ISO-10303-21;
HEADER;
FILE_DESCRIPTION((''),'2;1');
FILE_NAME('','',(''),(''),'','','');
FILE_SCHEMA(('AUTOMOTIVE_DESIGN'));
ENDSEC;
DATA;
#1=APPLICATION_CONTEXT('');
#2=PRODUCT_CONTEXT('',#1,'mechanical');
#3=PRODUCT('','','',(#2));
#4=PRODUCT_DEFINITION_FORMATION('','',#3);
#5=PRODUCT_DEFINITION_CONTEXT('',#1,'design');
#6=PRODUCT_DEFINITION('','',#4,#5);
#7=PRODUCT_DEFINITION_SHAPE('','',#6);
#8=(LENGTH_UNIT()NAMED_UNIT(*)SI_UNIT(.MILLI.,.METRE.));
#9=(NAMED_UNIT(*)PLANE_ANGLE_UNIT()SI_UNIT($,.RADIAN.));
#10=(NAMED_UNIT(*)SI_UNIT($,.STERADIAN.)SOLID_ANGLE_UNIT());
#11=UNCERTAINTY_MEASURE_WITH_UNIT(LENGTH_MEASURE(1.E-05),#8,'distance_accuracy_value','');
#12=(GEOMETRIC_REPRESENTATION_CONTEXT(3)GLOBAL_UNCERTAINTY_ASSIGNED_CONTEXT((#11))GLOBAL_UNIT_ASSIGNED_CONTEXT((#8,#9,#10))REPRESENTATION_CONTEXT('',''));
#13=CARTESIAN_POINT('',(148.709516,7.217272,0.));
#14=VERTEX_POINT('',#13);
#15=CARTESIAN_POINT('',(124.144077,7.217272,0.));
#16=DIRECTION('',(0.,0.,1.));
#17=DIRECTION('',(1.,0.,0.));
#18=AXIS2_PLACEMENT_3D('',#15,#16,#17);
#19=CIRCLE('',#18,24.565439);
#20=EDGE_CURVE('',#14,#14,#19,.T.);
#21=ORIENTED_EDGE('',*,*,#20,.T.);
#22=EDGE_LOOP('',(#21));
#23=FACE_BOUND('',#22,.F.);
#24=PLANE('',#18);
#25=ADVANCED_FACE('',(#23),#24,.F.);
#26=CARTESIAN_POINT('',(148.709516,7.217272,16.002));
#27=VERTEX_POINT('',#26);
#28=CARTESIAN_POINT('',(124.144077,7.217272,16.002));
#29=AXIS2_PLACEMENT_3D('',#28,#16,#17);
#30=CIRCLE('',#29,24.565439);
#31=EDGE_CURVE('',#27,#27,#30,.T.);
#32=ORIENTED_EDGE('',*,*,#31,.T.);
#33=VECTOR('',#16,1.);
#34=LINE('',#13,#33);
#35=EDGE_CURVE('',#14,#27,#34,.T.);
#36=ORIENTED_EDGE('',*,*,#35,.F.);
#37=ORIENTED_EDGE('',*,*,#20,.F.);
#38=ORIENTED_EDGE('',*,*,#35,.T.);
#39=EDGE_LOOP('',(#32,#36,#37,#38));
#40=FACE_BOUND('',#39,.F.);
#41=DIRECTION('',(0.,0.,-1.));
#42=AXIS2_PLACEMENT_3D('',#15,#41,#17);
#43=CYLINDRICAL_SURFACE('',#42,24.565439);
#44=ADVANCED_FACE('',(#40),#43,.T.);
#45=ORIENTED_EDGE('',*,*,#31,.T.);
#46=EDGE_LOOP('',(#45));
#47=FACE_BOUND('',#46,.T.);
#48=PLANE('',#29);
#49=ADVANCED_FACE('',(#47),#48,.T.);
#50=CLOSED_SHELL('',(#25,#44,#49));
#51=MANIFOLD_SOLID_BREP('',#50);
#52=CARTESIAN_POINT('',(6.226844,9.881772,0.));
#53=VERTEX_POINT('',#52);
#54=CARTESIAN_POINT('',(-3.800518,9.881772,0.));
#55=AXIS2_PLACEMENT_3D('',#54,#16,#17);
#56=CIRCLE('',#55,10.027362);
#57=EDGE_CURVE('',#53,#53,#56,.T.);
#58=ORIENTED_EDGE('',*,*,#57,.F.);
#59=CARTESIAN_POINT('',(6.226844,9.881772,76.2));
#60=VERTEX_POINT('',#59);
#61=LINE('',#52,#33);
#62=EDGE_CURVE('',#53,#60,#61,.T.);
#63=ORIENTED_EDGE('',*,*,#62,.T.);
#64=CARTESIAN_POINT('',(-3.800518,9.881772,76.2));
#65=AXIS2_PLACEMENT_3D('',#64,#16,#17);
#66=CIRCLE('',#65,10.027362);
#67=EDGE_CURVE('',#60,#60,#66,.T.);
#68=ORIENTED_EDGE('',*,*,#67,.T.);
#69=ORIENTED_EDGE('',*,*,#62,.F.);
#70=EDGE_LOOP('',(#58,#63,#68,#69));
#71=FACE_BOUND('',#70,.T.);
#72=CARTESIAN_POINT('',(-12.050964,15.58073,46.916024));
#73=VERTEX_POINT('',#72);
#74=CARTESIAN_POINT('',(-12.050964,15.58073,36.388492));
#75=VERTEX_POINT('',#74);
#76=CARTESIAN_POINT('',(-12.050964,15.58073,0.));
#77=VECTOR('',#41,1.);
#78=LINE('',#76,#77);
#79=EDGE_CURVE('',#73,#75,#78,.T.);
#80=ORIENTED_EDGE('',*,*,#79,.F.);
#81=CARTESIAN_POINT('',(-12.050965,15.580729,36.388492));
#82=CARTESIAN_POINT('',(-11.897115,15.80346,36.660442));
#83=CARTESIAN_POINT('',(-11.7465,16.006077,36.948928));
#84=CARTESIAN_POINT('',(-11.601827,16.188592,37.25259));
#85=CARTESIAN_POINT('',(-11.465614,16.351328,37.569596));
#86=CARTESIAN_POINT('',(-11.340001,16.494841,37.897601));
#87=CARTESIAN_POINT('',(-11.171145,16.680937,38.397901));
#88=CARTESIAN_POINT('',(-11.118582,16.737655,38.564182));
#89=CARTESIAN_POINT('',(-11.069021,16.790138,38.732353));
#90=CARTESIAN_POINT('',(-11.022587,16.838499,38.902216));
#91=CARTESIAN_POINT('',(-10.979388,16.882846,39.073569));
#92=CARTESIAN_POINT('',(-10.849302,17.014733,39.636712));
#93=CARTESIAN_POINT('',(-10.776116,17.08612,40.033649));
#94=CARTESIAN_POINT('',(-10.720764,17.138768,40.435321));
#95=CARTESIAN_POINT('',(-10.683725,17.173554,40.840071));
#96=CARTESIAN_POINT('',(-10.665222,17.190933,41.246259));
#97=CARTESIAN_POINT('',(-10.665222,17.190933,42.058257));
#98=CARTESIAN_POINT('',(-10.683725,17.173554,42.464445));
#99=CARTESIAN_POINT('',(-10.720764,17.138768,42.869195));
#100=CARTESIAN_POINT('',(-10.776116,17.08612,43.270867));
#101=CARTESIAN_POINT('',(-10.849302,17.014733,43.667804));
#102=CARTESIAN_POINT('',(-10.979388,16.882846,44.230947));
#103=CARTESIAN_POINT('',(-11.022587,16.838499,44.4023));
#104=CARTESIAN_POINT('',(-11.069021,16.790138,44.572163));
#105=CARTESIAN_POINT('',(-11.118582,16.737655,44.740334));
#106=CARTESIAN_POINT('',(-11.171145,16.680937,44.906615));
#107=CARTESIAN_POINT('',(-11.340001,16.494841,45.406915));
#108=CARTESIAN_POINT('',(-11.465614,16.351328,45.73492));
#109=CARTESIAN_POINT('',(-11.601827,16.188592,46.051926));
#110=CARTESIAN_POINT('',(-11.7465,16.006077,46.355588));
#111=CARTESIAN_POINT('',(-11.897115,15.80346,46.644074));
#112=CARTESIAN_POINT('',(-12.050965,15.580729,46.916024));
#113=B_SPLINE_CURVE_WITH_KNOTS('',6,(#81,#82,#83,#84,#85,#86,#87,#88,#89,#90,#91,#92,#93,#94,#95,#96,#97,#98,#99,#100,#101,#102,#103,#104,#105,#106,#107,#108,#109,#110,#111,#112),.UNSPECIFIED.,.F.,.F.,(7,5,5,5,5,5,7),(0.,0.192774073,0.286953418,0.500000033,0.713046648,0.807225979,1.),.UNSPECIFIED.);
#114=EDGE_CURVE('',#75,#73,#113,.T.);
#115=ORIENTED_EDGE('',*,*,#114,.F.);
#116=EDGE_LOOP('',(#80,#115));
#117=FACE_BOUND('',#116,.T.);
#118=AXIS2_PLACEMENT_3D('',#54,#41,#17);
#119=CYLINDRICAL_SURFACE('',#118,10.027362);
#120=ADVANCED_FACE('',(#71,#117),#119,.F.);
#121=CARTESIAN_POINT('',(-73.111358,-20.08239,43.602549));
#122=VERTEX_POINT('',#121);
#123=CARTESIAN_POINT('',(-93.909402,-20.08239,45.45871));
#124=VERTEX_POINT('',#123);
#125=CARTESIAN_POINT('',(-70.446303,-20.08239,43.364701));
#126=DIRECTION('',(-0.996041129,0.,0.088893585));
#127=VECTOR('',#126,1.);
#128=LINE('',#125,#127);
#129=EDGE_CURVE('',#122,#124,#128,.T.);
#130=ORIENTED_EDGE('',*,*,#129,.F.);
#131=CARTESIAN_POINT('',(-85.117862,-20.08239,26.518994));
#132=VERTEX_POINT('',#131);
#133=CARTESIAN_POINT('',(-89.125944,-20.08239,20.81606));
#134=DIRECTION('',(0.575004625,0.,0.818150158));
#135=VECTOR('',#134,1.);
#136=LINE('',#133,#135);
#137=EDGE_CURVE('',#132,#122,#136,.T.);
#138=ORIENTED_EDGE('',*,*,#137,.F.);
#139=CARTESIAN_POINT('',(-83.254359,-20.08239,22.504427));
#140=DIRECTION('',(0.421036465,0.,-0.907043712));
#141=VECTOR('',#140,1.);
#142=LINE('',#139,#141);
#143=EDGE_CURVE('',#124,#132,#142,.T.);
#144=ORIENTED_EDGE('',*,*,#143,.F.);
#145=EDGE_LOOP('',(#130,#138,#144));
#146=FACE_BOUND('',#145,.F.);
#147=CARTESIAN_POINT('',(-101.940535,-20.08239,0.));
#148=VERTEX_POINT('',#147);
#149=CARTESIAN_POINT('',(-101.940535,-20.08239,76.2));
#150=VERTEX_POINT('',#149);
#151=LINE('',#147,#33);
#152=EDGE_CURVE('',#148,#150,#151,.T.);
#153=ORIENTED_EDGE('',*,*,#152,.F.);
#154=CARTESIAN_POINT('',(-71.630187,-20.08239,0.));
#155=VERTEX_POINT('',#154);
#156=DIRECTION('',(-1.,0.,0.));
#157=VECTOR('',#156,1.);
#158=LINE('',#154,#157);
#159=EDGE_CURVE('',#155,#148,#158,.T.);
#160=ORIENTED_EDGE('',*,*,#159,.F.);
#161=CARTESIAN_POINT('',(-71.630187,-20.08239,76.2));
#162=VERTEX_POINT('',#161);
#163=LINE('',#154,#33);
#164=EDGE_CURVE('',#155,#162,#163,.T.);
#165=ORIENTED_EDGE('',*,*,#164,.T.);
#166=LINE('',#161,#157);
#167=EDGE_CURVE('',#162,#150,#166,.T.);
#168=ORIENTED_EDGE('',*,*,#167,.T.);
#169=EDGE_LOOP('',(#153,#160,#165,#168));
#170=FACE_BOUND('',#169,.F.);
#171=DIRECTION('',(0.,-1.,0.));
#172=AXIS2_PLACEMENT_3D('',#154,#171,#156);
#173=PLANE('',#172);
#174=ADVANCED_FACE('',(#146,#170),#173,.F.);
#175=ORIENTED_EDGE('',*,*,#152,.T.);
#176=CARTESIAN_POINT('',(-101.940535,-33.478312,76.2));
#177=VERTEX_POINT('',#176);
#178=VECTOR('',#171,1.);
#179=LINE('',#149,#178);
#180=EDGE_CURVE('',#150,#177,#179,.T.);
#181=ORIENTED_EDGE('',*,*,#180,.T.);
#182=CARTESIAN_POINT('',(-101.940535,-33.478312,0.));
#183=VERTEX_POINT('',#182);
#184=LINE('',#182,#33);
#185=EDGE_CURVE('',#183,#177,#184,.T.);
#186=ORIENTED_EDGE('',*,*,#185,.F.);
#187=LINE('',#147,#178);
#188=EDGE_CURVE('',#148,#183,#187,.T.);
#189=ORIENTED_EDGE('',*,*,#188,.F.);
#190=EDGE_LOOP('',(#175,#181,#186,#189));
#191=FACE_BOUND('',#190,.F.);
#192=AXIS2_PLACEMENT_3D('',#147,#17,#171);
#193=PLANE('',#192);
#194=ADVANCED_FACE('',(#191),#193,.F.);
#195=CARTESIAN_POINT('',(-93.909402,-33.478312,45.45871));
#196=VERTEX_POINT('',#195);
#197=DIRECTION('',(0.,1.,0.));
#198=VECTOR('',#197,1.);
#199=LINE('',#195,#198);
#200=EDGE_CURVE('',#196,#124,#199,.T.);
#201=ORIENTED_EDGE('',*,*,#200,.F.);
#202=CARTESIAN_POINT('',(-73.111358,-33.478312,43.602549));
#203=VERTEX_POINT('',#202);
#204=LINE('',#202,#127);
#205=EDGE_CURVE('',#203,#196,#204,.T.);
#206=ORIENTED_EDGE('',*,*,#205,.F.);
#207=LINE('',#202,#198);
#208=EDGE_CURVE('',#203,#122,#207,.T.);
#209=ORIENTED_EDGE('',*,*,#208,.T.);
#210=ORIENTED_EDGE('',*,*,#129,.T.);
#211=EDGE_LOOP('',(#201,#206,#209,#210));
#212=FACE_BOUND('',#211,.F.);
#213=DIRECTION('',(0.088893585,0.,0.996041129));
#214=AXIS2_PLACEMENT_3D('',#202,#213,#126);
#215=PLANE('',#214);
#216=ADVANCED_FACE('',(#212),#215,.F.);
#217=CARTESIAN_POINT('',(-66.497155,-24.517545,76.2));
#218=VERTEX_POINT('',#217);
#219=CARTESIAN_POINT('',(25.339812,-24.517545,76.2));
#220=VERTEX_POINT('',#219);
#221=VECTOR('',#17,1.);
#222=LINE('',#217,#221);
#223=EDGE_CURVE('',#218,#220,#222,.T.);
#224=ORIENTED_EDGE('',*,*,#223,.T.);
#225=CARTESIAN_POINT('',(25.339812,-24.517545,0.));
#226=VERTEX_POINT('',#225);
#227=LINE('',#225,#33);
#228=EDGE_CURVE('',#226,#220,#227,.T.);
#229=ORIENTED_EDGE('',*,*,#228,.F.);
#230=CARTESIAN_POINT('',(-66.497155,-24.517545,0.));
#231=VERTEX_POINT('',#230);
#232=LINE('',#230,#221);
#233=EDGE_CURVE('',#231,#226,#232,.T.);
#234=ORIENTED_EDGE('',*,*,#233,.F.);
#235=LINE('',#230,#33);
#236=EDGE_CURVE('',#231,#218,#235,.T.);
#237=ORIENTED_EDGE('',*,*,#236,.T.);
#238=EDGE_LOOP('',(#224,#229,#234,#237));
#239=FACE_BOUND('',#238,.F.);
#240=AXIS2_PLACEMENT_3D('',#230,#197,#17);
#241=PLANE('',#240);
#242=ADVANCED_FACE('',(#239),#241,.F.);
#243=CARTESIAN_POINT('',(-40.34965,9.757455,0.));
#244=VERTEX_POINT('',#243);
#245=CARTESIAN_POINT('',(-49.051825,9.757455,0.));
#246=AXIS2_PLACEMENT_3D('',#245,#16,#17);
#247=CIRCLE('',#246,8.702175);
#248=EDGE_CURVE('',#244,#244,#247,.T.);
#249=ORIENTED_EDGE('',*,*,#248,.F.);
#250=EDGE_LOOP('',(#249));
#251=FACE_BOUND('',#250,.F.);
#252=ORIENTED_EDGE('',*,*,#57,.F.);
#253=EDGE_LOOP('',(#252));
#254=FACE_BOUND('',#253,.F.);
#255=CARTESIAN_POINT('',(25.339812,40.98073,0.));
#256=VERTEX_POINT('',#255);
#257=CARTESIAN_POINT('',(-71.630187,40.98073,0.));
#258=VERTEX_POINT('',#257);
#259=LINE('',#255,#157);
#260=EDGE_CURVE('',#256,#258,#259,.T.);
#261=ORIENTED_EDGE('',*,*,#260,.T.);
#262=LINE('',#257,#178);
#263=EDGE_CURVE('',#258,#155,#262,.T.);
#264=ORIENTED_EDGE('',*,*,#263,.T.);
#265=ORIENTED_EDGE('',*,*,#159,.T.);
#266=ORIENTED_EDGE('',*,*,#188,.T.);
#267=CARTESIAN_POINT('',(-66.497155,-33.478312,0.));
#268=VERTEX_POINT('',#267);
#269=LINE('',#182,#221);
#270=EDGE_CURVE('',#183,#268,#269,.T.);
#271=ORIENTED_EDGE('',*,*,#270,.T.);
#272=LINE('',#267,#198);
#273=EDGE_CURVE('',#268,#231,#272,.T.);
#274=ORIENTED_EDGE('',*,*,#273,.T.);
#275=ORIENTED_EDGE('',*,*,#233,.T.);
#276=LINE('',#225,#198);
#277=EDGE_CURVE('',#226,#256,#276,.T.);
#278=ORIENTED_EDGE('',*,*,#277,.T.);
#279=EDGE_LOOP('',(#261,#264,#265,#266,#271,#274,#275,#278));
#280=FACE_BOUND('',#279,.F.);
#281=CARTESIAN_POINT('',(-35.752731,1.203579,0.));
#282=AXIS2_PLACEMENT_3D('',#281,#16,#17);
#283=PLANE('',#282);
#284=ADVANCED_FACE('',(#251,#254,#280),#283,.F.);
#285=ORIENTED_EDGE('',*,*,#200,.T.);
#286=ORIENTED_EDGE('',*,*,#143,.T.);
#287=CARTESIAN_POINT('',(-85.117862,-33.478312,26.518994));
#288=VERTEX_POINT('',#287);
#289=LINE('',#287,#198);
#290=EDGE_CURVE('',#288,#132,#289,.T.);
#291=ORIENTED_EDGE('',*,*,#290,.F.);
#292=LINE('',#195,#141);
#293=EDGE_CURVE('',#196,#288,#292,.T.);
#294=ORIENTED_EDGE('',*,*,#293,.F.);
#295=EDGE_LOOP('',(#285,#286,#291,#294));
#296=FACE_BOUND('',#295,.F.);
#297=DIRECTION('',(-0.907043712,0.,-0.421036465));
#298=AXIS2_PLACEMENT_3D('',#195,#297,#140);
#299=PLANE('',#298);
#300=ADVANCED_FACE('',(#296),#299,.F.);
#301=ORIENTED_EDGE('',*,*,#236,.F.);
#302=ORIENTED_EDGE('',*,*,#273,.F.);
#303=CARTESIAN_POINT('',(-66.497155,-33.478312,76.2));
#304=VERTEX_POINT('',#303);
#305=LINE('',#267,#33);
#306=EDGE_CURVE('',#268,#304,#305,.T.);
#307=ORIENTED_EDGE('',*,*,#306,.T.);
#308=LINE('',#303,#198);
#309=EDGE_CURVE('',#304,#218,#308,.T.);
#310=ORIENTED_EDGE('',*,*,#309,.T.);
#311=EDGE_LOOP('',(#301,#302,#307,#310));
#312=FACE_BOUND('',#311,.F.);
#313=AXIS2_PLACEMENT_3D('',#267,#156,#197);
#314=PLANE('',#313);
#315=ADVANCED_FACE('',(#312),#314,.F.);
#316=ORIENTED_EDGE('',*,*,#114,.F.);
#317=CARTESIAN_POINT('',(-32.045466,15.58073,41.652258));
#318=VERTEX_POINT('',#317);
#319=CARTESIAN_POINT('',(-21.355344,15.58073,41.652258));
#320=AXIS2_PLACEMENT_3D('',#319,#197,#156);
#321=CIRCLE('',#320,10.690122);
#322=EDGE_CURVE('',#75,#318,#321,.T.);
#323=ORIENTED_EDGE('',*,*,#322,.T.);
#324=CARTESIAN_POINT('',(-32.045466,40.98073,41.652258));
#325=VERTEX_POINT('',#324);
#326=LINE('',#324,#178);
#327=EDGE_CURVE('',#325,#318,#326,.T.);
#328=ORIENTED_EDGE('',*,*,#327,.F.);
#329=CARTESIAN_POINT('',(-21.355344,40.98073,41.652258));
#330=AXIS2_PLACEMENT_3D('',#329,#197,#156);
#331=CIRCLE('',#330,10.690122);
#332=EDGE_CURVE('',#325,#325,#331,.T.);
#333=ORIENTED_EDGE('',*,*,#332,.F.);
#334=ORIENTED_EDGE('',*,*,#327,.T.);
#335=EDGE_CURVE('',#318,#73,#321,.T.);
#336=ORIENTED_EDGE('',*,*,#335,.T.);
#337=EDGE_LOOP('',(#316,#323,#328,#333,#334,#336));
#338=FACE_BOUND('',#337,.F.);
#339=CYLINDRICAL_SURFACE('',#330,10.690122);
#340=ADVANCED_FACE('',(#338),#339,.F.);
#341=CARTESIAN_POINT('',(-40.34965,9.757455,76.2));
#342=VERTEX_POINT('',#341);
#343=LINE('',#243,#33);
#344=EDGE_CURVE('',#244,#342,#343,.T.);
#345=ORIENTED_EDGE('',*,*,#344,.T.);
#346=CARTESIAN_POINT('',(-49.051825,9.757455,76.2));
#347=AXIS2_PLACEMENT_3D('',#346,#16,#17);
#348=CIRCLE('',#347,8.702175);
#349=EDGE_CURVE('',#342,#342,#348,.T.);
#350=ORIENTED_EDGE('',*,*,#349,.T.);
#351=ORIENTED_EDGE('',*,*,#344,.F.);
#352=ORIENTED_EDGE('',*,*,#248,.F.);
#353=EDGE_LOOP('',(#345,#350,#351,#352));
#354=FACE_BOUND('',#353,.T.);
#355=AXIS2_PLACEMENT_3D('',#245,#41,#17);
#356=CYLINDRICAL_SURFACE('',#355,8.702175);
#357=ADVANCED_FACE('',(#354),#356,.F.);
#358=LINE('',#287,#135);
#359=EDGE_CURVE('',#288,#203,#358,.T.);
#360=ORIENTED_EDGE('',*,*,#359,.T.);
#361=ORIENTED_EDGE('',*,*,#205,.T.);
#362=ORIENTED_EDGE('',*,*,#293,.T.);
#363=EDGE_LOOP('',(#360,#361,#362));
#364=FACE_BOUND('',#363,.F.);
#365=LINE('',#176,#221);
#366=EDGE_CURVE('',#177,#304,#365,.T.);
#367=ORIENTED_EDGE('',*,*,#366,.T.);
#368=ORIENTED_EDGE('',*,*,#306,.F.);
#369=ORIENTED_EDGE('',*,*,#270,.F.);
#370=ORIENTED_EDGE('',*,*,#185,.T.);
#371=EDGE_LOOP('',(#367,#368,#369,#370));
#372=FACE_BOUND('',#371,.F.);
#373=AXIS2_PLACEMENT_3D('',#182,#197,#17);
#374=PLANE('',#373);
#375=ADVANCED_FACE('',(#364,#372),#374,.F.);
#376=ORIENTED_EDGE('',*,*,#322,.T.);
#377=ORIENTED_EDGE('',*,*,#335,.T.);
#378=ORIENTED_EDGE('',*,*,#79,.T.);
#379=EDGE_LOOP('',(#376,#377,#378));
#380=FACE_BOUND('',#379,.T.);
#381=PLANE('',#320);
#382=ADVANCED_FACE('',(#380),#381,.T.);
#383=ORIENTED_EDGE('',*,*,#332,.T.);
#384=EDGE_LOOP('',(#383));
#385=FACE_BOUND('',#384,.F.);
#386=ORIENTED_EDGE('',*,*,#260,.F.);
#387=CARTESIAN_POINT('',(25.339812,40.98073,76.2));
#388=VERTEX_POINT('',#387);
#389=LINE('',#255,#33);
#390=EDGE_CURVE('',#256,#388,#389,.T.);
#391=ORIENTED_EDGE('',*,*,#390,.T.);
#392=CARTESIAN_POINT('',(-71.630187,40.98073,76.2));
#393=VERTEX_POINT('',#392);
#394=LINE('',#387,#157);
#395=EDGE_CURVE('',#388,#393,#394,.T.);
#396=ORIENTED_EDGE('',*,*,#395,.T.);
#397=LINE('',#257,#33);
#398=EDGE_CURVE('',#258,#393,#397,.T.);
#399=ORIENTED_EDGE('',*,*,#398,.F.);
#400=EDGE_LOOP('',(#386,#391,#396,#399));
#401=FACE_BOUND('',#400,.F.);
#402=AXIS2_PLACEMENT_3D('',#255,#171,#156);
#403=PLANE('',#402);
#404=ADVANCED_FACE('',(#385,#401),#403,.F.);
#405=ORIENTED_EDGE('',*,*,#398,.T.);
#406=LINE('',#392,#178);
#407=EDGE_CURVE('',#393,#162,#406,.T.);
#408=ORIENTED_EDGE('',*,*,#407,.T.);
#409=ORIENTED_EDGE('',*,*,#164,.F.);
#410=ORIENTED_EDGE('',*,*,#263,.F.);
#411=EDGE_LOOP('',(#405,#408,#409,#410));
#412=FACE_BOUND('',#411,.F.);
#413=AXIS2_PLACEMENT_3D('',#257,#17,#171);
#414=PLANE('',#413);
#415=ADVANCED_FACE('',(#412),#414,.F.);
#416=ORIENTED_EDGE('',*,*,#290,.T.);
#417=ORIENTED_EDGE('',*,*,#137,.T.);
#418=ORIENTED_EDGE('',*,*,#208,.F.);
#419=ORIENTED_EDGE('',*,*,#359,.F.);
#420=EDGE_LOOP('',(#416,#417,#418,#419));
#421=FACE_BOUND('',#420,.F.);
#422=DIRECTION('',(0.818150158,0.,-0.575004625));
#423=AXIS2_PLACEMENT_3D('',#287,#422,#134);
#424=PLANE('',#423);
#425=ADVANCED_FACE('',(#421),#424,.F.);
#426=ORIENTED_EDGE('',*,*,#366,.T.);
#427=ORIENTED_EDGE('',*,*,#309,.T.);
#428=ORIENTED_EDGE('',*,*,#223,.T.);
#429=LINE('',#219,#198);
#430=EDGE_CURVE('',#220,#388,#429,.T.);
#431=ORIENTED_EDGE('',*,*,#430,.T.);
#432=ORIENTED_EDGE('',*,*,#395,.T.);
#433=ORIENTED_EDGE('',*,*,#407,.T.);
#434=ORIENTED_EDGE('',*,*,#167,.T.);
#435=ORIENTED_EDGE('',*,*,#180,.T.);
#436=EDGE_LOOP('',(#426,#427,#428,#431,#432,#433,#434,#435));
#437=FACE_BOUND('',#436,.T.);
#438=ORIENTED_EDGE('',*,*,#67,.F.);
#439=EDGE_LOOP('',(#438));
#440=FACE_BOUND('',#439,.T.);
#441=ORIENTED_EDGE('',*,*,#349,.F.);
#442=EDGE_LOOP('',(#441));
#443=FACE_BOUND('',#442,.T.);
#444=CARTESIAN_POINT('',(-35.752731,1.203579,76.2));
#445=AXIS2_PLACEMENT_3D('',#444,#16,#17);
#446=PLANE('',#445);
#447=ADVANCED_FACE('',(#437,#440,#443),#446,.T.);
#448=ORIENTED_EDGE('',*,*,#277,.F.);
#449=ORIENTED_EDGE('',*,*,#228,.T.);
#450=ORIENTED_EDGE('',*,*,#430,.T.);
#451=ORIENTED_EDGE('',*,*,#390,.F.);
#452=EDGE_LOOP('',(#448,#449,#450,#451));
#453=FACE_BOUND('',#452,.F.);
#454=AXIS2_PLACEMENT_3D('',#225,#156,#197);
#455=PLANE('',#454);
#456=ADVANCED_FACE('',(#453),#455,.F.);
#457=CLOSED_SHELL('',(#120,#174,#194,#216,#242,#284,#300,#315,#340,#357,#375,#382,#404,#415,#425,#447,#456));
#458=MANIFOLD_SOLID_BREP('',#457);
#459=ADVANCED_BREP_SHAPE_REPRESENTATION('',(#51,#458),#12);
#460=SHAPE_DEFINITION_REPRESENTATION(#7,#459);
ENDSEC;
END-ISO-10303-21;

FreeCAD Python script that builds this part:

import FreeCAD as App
import Part
import Sketcher
Q = App.Units.Quantity


def add_polygon(sketch, points):
    """Adds a closed chain of lines whose ends are joined by coincident constraints."""
    first, n = sketch.GeometryCount, len(points)
    for a, b in zip(points, points[1:] + points[:1]):
        sketch.addGeometry(Part.LineSegment(App.Vector(*a, 0), App.Vector(*b, 0)), False)
    for i in range(n):
        sketch.addConstraint(Sketcher.Constraint("Coincident", first + i, 2, first + (i + 1) % n, 1))

doc = App.newDocument("Part")
body = doc.addObject("PartDesign::Body", "Body")

sketch1 = body.newObject("Sketcher::SketchObject", "Sketch")
sketch1.AttachmentSupport = (doc.getObject("XY_Plane"), [""])
sketch1.MapMode = "FlatFace"
add_polygon(sketch1, [(25, 41), (-72, 41), (-72, -20), (-102, -20), (-102, -33), (-66, -33), (-66, -25), (25, -25)])
sketch1.addGeometry(Part.Circle(App.Vector(-49, 10, 0), App.Vector(0, 0, 1), 9), False)
sketch1.addGeometry(Part.Circle(App.Vector(-4, 10, 0), App.Vector(0, 0, 1), 10), False)
sketch1.addConstraint([
    Sketcher.Constraint("Horizontal", 0),
    Sketcher.Constraint("Vertical", 1),
    Sketcher.Constraint("Horizontal", 2),
    Sketcher.Constraint("Vertical", 3),
    Sketcher.Constraint("Horizontal", 4),
    Sketcher.Constraint("Vertical", 5),
    Sketcher.Constraint("Horizontal", 6),
    Sketcher.Constraint("Vertical", 7),
    Sketcher.Constraint("Diameter", 8, 17.40435),
    Sketcher.Constraint("Diameter", 9, 20.054724),
    Sketcher.Constraint("DistanceX", 0, 2, 0, 1, 96.969999),
    Sketcher.Constraint("DistanceX", 4, 1, 4, 2, 35.44338),
    Sketcher.Constraint("DistanceY", 1, 2, 1, 1, 61.06312),
    Sketcher.Constraint("DistanceY", 5, 2, 8, 3, 34.275),
    Sketcher.Constraint("DistanceX", 2, 2, 2, 1, 30.310348),
    Sketcher.Constraint("DistanceY", 3, 2, 3, 1, 13.395922),
    Sketcher.Constraint("DistanceY", 5, 1, 5, 2, 8.960767),
    Sketcher.Constraint("DistanceY", -1, 1, 0, 2, 40.98073),
    Sketcher.Constraint("DistanceX", -1, 1, 6, 2, 25.339812),
    Sketcher.Constraint("DistanceX", 0, 2, 9, 3, 67.829669),
    Sketcher.Constraint("DistanceY", 9, 3, 0, 2, 31.098958),
    Sketcher.Constraint("DistanceX", 2, 2, 8, 3, 52.88871),
])
pad1 = body.newObject("PartDesign::Pad", "Pad")
pad1.Profile = sketch1
pad1.Length = Q("3 in")

sketch2 = body.newObject("Sketcher::SketchObject", "Sketch001")
sketch2.AttachmentSupport = (doc.getObject("XZ_Plane"), [""])
sketch2.MapMode = "FlatFace"
sketch2.AttachmentOffset = App.Placement(App.Vector(0, 0, 33.478312), App.Rotation())
add_polygon(sketch2, [(-85, 27), (-73, 44), (-94, 45)])
sketch2.addConstraint([
    Sketcher.Constraint("Equal", 0, 1),
    Sketcher.Constraint("Equal", 1, 2),
    Sketcher.Constraint("DistanceX", 0, 2, -1, 1, Q("2.8783999 in")),
    Sketcher.Constraint("DistanceX", 1, 2, -1, 1, 93.909402),
    Sketcher.Constraint("Distance", 0, 20.880709),
    Sketcher.Constraint("DistanceY", -1, 1, 0, 2, 43.602549),
])
pocket1 = body.newObject("PartDesign::Pocket", "Pocket")
pocket1.Profile = sketch2
pocket1.Length = Q("1.95 in")

sketch3 = body.newObject("Sketcher::SketchObject", "Sketch002")
sketch3.AttachmentSupport = (doc.getObject("XZ_Plane"), [""])
sketch3.MapMode = "FlatFace"
sketch3.AttachmentOffset = App.Placement(App.Vector(0, 0, -40.98073), App.Rotation())
sketch3.addGeometry(Part.Circle(App.Vector(-21, 42, 0), App.Vector(0, 0, 1), 11), False)
sketch3.addConstraint([
    Sketcher.Constraint("Diameter", 0, 21.380244),
    Sketcher.Constraint("DistanceY", -1, 1, 0, 3, 41.652258),
    Sketcher.Constraint("DistanceX", 0, 3, -1, 1, 21.355344),
])
pocket2 = body.newObject("PartDesign::Pocket", "Pocket001")
pocket2.Profile = sketch3
pocket2.Length = Q("1 in")
pocket2.Reversed = True
body2 = doc.addObject("PartDesign::Body", "Body001")

sketch4 = body2.newObject("Sketcher::SketchObject", "Sketch003")
sketch4.AttachmentSupport = (doc.getObject("XY_Plane001"), [""])
sketch4.MapMode = "FlatFace"
sketch4.addGeometry(Part.Circle(App.Vector(124, 7, 0), App.Vector(0, 0, 1), 25), False)
sketch4.addConstraint([
    Sketcher.Constraint("Diameter", 0, 49.130878),
    Sketcher.Constraint("DistanceX", -1, 1, 0, 3, 124.144077),
    Sketcher.Constraint("DistanceY", -1, 1, 0, 3, 7.217272),
])
pad2 = body2.newObject("PartDesign::Pad", "Pad001")
pad2.Profile = sketch4
pad2.Length = Q("0.63 in")

doc.recompute()
